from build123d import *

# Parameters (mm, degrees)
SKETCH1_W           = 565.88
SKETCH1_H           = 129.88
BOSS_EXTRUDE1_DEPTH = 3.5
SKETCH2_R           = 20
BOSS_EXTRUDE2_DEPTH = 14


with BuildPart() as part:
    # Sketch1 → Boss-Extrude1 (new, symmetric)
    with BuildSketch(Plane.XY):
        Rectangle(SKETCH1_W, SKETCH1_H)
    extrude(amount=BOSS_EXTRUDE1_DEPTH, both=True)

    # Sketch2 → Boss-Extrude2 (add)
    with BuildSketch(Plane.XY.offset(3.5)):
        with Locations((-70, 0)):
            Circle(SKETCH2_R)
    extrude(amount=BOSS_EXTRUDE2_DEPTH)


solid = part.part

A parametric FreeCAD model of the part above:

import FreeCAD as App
import Part
import Sketcher
Q = App.Units.Quantity

doc = App.newDocument("Part")
params = doc.addObject("Spreadsheet::Sheet", "Params")
for row, (alias, value) in enumerate([
    ("sketch1_width", "565.88 mm"),
    ("sketch1_height", "129.88 mm"),
    ("pad1_length", "7 mm"),
    ("sketch2_diameter", "40 mm"),
    ("pad2_length", "14 mm"),
], start=1):
    params.set(f"A{row}", alias)
    params.set(f"B{row}", "=" + value)
    params.setAlias(f"B{row}", alias)

body = doc.addObject("PartDesign::Body", "Body")

# Sketch on XY plane
sketch1 = doc.addObject("Sketcher::SketchObject", "Sketch")
body.addObject(sketch1)
sketch1.AttachmentSupport = (doc.XY_Plane, [""])
sketch1.MapMode = "FlatFace"
sketch1.addGeometry([
    Part.LineSegment(App.Vector(-283, 65, 0), App.Vector(-283, -65, 0)),
    Part.LineSegment(App.Vector(-283, -65, 0), App.Vector(283, -65, 0)),
    Part.LineSegment(App.Vector(283, -65, 0), App.Vector(283, 65, 0)),
    Part.LineSegment(App.Vector(283, 65, 0), App.Vector(-283, 65, 0)),
], False)
sketch1.addConstraint([
    Sketcher.Constraint("Coincident", 0, 2, 1, 1),
    Sketcher.Constraint("Coincident", 1, 2, 2, 1),
    Sketcher.Constraint("Coincident", 2, 2, 3, 1),
    Sketcher.Constraint("Coincident", 3, 2, 0, 1),
    Sketcher.Constraint("Vertical", 0),
    Sketcher.Constraint("Horizontal", 1),
    Sketcher.Constraint("Vertical", 2),
    Sketcher.Constraint("Horizontal", 3),
    Sketcher.Constraint("Symmetric", 0, 2, 2, 2, -1, 1),
    Sketcher.Constraint("DistanceX", 1, 1, 1, 2, Q("565.88 mm")),
    Sketcher.Constraint("DistanceY", 0, 2, 0, 1, Q("129.88 mm")),
])
sketch1.setExpression("Constraints[9]", "Params.sketch1_width")
sketch1.setExpression("Constraints[10]", "Params.sketch1_height")
pad1 = doc.addObject("PartDesign::Pad", "Pad")
body.addObject(pad1)
pad1.Profile = sketch1
pad1.setExpression("Length", "Params.pad1_length")
pad1.Midplane = True

# Sketch on XY plane
sketch2 = doc.addObject("Sketcher::SketchObject", "Sketch001")
body.addObject(sketch2)
sketch2.AttachmentSupport = (doc.XY_Plane, [""])
sketch2.MapMode = "FlatFace"
sketch2.AttachmentOffset = App.Placement(App.Vector(0, 0, 3.5), App.Rotation())
sketch2.addGeometry(Part.Circle(App.Vector(-70, 0, 0), App.Vector(0, 0, 1), 20), False)
sketch2.addConstraint([
    Sketcher.Constraint("PointOnObject", 0, 3, -1),
    Sketcher.Constraint("Diameter", 0, Q("40 mm")),
    Sketcher.Constraint("DistanceX", 0, 3, -1, 1, Q("70 mm")),
])
sketch2.setExpression("Constraints[1]", "Params.sketch2_diameter")
pad2 = doc.addObject("PartDesign::Pad", "Pad001")
body.addObject(pad2)
pad2.Profile = sketch2
pad2.setExpression("Length", "Params.pad2_length")

doc.recompute()
